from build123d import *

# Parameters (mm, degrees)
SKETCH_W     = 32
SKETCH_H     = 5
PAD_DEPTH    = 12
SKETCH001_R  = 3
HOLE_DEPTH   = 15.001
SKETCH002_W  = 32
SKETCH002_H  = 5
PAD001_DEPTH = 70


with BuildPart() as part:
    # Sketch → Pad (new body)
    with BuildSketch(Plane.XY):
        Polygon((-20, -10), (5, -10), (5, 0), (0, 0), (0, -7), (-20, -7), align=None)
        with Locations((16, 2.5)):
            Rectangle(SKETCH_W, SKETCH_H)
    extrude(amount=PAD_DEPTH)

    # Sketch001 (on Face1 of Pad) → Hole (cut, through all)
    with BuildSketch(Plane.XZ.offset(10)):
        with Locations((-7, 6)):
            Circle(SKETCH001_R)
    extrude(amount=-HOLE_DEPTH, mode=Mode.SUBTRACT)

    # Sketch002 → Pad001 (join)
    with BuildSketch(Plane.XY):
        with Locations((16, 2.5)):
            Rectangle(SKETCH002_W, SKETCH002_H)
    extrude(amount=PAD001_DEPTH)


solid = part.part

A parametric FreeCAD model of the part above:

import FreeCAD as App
import Part
import Sketcher

V = App.Vector


def add_polygon(sketch, points):
    """Adds a closed chain of lines whose ends are joined by coincident constraints."""
    first, n = sketch.GeometryCount, len(points)
    for a, b in zip(points, points[1:] + points[:1]):
        sketch.addGeometry(Part.LineSegment(App.Vector(*a, 0), App.Vector(*b, 0)), False)
    for i in range(n):
        sketch.addConstraint(Sketcher.Constraint("Coincident", first + i, 2, first + (i + 1) % n, 1))

doc = App.newDocument("Part")
body = doc.addObject("PartDesign::Body", "Body")

# Sketch on XY plane
sketch1 = doc.addObject("Sketcher::SketchObject", "Sketch")
body.addObject(sketch1)
sketch1.AttachmentSupport = (doc.XY_Plane, [""])
sketch1.MapMode = "FlatFace"
add_polygon(sketch1, [(-20, -10), (5, -10), (5, 0), (32, 0), (32, 5), (0, 5), (0, -7), (-20, -7)])  # lines 0-7
sketch1.addConstraint([
    Sketcher.Constraint("Horizontal", 0),
    Sketcher.Constraint("Vertical", 1),
    Sketcher.Constraint("Horizontal", 2),
    Sketcher.Constraint("Vertical", 3),
    Sketcher.Constraint("Horizontal", 4),
    Sketcher.Constraint("Vertical", 5),
    Sketcher.Constraint("Horizontal", 6),
    Sketcher.Constraint("Vertical", 7),
    Sketcher.Constraint("PointOnObject", 1, 2, -1),
    Sketcher.Constraint("PointOnObject", 4, 2, -2),
    Sketcher.Constraint("DistanceX", 0, 1, 0, 2, 25.0),
    Sketcher.Constraint("DistanceX", 2, 1, 2, 2, 27.0),
    Sketcher.Constraint("DistanceX", 4, 2, 4, 1, 32.0),
    Sketcher.Constraint("DistanceY", 1, 1, 1, 2, 10.0),
    Sketcher.Constraint("DistanceY", 3, 1, 3, 2, 5.0),
    Sketcher.Constraint("DistanceY", 5, 2, 5, 1, 12.0),
])
pad1 = doc.addObject("PartDesign::Pad", "Pad")
body.addObject(pad1)
pad1.Profile = sketch1
pad1.Length = 12

# Sketch on XZ plane
sketch2 = doc.addObject("Sketcher::SketchObject", "Sketch001")
body.addObject(sketch2)
sketch2.AttachmentSupport = (doc.XZ_Plane, [""])
sketch2.MapMode = "FlatFace"
sketch2.AttachmentOffset = App.Placement(V(0, 0, 10), App.Rotation())
sketch2.addGeometry(Part.Circle(V(-7, 6, 0), V(0, 0, 1), 3), False)
sketch2.addConstraint([
    Sketcher.Constraint("Diameter", 0, 6.0),
    Sketcher.Constraint("DistanceX", 0, 3, -1, 1, 7.0),
    Sketcher.Constraint("DistanceY", -1, 1, 0, 3, 6.0),
])
pocket1 = doc.addObject("PartDesign::Pocket", "Pocket")
body.addObject(pocket1)
pocket1.Profile = sketch2
pocket1.Type = "ThroughAll"

# Sketch on XY plane
sketch3 = doc.addObject("Sketcher::SketchObject", "Sketch002")
body.addObject(sketch3)
sketch3.AttachmentSupport = (doc.XY_Plane, [""])
sketch3.MapMode = "FlatFace"
add_polygon(sketch3, [(0, 5), (0, 0), (32, 0), (32, 5)])  # lines 0-3
sketch3.addConstraint([
    Sketcher.Constraint("Vertical", 0),
    Sketcher.Constraint("Horizontal", 1),
    Sketcher.Constraint("Vertical", 2),
    Sketcher.Constraint("Horizontal", 3),
    Sketcher.Constraint("Coincident", 0, 2, -1, 1),
    Sketcher.Constraint("DistanceX", 1, 1, 1, 2, 32.0),
    Sketcher.Constraint("DistanceY", 0, 2, 0, 1, 5.0),
])
pad2 = doc.addObject("PartDesign::Pad", "Pad001")
body.addObject(pad2)
pad2.Profile = sketch3
pad2.Length = 70

doc.recompute()
